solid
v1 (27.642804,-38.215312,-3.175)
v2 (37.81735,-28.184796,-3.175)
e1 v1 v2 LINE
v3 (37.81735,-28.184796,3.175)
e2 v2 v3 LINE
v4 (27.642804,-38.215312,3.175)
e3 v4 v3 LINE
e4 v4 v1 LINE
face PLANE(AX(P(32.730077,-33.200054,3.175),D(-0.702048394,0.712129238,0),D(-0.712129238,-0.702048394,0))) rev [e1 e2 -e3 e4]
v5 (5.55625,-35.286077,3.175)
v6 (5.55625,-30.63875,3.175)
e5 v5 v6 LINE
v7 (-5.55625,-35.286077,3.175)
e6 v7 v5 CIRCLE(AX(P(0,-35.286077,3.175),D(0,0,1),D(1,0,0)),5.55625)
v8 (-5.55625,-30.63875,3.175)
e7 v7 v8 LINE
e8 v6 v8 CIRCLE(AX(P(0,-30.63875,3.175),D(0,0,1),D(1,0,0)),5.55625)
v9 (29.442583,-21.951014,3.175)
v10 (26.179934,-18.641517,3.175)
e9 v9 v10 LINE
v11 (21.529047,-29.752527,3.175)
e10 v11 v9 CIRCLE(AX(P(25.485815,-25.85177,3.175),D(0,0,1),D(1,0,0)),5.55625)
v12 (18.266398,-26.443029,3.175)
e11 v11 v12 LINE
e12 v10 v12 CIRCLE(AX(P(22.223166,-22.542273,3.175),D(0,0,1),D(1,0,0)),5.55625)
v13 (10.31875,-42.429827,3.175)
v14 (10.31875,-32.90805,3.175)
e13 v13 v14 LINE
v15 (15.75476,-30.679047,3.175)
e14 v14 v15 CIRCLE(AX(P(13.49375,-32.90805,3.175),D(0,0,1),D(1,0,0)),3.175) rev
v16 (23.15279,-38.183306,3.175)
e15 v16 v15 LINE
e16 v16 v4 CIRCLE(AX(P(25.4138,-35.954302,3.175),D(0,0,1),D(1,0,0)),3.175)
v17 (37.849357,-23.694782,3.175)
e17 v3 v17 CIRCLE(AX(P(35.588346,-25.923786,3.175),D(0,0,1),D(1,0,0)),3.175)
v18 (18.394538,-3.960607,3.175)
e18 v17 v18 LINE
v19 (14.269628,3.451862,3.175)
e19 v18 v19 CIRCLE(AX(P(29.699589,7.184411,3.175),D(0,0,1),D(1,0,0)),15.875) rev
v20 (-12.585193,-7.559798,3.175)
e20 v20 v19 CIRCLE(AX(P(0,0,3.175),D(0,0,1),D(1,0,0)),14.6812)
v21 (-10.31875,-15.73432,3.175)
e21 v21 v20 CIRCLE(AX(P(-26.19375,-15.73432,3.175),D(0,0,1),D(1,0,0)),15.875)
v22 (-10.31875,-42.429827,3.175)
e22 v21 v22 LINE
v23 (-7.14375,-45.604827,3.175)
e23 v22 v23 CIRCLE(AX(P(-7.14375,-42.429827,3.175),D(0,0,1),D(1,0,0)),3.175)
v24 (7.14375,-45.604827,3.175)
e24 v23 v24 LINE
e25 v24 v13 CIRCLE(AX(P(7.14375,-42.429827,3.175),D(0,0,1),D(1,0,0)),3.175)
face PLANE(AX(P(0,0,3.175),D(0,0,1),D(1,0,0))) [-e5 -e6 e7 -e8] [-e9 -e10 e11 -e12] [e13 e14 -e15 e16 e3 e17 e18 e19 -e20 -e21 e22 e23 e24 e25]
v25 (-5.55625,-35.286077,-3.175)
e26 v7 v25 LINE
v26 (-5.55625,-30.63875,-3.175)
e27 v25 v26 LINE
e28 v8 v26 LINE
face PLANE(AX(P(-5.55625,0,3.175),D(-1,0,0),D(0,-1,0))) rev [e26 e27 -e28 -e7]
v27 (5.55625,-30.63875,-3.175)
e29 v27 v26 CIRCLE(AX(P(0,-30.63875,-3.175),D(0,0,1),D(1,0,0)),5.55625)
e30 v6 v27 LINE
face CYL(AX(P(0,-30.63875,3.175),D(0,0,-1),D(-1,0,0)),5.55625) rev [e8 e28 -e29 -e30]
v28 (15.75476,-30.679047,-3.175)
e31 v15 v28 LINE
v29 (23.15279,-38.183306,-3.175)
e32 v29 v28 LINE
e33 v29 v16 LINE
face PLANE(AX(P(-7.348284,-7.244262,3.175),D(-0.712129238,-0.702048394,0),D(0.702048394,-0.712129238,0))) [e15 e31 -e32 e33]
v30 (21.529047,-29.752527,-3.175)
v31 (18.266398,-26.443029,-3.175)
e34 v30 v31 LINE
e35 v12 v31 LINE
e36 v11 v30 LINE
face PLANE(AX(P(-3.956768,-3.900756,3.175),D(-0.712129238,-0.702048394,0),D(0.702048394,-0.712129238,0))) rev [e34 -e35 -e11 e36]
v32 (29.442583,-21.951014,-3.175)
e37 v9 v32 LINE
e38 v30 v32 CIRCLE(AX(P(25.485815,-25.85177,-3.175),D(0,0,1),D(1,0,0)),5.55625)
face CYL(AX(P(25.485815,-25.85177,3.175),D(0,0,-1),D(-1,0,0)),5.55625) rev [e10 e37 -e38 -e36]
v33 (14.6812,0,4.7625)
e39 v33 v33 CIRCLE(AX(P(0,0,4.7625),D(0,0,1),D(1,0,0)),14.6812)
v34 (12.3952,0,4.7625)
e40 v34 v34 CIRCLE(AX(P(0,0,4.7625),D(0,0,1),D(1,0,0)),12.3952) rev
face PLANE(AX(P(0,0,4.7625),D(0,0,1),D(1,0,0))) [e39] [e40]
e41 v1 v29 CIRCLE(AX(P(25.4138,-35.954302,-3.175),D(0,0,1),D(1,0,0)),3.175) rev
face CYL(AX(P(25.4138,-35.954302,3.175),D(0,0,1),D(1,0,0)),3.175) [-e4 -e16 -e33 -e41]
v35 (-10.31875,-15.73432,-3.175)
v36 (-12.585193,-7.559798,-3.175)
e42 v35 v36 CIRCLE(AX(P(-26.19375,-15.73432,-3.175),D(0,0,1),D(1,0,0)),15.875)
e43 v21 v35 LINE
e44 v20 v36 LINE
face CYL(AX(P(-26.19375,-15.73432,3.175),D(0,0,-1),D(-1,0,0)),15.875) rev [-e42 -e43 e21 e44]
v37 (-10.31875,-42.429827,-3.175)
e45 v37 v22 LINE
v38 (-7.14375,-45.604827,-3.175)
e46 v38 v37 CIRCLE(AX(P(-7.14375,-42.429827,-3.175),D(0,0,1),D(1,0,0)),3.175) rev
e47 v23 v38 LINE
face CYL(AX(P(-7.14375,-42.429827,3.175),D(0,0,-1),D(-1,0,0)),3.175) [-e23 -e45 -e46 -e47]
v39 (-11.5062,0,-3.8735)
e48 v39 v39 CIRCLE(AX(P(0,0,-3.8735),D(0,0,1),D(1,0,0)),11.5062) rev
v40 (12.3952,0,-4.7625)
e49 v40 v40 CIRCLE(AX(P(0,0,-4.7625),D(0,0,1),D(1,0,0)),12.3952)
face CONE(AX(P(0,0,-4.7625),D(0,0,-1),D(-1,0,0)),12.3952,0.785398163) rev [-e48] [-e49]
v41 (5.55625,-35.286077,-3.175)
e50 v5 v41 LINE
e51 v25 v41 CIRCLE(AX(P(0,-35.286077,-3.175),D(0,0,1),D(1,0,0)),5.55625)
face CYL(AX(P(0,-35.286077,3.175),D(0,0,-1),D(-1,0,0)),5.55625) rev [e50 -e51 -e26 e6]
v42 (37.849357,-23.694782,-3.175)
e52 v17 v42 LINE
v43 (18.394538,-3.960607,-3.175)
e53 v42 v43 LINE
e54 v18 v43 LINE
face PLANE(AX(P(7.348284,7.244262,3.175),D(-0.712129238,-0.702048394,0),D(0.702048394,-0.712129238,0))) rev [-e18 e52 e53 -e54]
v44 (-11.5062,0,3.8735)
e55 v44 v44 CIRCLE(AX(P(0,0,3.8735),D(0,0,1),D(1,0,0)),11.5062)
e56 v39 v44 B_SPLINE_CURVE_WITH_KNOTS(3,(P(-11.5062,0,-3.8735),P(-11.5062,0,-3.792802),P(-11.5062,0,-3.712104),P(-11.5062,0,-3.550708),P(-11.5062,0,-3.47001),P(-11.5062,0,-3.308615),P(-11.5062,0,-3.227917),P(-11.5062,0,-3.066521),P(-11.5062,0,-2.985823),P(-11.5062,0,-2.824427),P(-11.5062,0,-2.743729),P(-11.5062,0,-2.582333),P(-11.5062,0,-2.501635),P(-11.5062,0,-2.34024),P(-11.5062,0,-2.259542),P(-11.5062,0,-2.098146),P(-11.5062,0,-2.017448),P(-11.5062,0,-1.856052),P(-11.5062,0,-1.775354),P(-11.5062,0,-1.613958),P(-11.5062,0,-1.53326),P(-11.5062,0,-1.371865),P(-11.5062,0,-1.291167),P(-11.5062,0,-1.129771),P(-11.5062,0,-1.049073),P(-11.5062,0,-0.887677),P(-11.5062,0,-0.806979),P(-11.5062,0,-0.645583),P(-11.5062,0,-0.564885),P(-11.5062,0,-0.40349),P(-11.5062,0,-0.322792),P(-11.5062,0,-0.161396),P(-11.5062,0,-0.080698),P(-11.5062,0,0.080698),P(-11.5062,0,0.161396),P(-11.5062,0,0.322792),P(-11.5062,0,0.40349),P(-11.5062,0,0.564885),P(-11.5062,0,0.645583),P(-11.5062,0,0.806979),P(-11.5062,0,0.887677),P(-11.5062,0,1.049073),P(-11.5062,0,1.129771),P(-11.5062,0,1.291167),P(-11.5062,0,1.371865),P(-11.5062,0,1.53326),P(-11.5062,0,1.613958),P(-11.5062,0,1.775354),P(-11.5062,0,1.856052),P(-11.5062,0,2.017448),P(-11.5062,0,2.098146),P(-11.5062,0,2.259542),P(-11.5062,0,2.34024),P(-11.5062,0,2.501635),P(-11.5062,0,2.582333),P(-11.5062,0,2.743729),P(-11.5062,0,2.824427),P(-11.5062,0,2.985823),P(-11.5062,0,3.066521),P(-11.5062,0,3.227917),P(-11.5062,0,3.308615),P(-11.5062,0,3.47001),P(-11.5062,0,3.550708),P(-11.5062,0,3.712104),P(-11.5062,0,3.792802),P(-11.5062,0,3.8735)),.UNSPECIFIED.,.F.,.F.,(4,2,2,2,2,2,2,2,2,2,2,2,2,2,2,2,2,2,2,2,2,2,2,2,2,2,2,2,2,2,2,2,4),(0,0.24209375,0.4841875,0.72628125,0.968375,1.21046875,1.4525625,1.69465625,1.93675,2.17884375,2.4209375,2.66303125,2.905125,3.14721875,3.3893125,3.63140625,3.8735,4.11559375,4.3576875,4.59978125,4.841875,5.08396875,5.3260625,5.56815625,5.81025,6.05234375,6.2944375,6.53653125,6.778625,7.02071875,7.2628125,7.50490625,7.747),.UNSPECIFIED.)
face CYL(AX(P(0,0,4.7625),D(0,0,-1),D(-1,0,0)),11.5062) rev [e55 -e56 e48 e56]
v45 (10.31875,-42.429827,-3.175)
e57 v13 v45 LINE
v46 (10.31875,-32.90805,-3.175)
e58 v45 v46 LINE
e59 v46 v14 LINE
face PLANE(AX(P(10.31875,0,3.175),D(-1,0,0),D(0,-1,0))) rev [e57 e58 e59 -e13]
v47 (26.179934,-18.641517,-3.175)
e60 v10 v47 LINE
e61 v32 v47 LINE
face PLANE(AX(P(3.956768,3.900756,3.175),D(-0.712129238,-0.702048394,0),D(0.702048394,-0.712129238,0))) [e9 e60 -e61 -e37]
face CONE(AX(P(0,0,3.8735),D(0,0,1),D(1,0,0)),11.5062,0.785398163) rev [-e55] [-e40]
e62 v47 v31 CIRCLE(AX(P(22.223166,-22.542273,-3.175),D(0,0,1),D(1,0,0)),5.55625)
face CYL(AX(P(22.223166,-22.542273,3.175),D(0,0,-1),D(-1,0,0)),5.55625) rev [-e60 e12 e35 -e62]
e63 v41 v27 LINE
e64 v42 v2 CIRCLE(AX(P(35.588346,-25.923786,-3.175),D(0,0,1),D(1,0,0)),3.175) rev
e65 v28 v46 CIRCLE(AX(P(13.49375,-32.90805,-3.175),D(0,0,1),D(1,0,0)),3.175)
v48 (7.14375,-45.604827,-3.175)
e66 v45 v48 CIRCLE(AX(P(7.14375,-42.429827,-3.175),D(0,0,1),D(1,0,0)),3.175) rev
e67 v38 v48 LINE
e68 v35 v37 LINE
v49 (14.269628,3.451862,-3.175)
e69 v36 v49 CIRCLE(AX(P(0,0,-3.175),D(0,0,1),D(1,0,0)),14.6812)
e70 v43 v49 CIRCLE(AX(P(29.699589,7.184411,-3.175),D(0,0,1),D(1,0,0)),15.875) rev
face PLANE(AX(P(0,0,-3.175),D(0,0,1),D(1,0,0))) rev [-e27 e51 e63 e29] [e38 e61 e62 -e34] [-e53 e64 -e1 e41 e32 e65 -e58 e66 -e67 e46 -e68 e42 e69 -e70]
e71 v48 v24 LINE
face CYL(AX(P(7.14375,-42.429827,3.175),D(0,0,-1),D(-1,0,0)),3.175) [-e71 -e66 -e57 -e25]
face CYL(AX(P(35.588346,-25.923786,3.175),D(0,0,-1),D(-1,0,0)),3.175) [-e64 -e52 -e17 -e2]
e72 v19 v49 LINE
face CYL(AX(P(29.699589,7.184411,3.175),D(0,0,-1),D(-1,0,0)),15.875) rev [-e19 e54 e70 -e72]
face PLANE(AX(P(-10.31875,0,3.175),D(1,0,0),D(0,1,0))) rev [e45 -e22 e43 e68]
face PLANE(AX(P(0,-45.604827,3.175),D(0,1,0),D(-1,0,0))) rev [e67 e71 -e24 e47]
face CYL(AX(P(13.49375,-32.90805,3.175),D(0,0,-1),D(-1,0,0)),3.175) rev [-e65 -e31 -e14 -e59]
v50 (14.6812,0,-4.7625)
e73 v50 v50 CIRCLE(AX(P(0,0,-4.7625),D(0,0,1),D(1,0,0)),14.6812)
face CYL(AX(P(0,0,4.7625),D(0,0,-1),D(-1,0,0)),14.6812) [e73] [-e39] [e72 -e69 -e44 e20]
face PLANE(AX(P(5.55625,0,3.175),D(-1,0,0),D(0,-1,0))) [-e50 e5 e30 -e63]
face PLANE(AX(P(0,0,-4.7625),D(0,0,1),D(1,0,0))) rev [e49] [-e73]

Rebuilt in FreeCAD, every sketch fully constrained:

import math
import FreeCAD as App
import Part
import Sketcher
Q = App.Units.Quantity


def edges_at(feature, points):
    """Names of the edges that pass closest to the given points."""
    edges = feature.Shape.Edges
    near = lambda p: min(range(len(edges)), key=lambda i: edges[i].distToShape(Part.Vertex(*p))[0])
    return sorted({f"Edge{near(p) + 1}" for p in points})

doc = App.newDocument("Part")
body = doc.addObject("PartDesign::Body", "Body")

# Sketch on XY plane
sketch1 = body.newObject("Sketcher::SketchObject", "Sketch")
sketch1.AttachmentSupport = (doc.getObject("XY_Plane"), [""])
sketch1.MapMode = "FlatFace"
sketch1.addGeometry([
    Part.ArcOfCircle(Part.Circle(App.Vector(0, 0, 0), App.Vector(0, 0, 1), 15), math.radians(14), math.radians(211)),
    Part.ArcOfCircle(Part.Circle(App.Vector(0, 0, 0), App.Vector(0, 0, 1), 15), math.radians(-149), math.radians(14)),
    Part.Circle(App.Vector(0, 0, 0), App.Vector(0, 0, 1), 12),
], False)
sketch1.addConstraint([
    Sketcher.Constraint("Tangent", 0, 1, 1, 2),
    Sketcher.Constraint("Coincident", 1, 1, 0, 2),
    Sketcher.Constraint("Coincident", 0, 3, -1, 1),
    Sketcher.Constraint("Coincident", 2, 3, -1, 1),
    Sketcher.Constraint("Diameter", 2, Q("0.906 in")),
    Sketcher.Constraint("Radius", 0, Q("0.578 in")),
    Sketcher.Constraint("DistanceY", -1, 1, 0, 1, Q("0.1359001 in")),
    Sketcher.Constraint("DistanceX", 1, 1, 0, 1, Q("26.854821 mm")),
])
pad1 = body.newObject("PartDesign::Pad", "Pad")
pad1.Profile = sketch1
pad1.Length = Q("0.375 in")
pad1.Midplane = True

# Sketch on XY plane
sketch2 = body.newObject("Sketcher::SketchObject", "Sketch001")
sketch2.AttachmentSupport = (doc.getObject("XY_Plane"), [""])
sketch2.MapMode = "FlatFace"
sketch2.addGeometry([
    Part.ArcOfCircle(Part.Circle(App.Vector(-26.2, -15.7, 0), App.Vector(0, 0, 1), 15.9), math.radians(0), math.radians(31)),  # 0
    Part.LineSegment(App.Vector(-10.3, -15.7, 0), App.Vector(-10.3, -45.6, 0)),  # 1
    Part.LineSegment(App.Vector(-10.3, -45.6, 0), App.Vector(10.3, -45.6, 0)),  # 2
    Part.LineSegment(App.Vector(10.3, -45.6, 0), App.Vector(10.3, -25.2, 0)),  # 3
    Part.LineSegment(App.Vector(10.3, -25.2, 0), App.Vector(25.4, -40.4, 0)),  # 4
    Part.LineSegment(App.Vector(25.4, -40.4, 0), App.Vector(40.1, -26, 0)),  # 5
    Part.LineSegment(App.Vector(40.1, -26, 0), App.Vector(18.4, -4, 0)),  # 6
    Part.ArcOfCircle(Part.Circle(App.Vector(29.7, 7.2, 0), App.Vector(0, 0, 1), 15.9), math.radians(-166), math.radians(-135)),  # 7
    Part.ArcOfCircle(Part.Circle(App.Vector(0, 0, 0), App.Vector(0, 0, 1), 14.7), math.radians(-149), math.radians(14)),  # 8
    Part.LineSegment(App.Vector(5.6, -30.6, 0), App.Vector(5.6, -35.3, 0)),  # 9
    Part.ArcOfCircle(Part.Circle(App.Vector(0, -35.3, 0), App.Vector(0, 0, 1), 5.6), math.radians(180), math.radians(360)),  # 10
    Part.LineSegment(App.Vector(-5.6, -35.3, 0), App.Vector(-5.6, -30.6, 0)),  # 11
    Part.ArcOfCircle(Part.Circle(App.Vector(0, -30.6, 0), App.Vector(0, 0, 1), 5.6), math.radians(0), math.radians(180)),  # 12
    Part.LineSegment(App.Vector(26.2, -18.6, 0), App.Vector(29.4, -22, 0)),  # 13
    Part.ArcOfCircle(Part.Circle(App.Vector(25.5, -25.9, 0), App.Vector(0, 0, 1), 5.6), math.radians(-135), math.radians(45)),  # 14
    Part.LineSegment(App.Vector(21.5, -29.8, 0), App.Vector(18.3, -26.4, 0)),  # 15
    Part.ArcOfCircle(Part.Circle(App.Vector(22.2, -22.5, 0), App.Vector(0, 0, 1), 5.6), math.radians(45), math.radians(225)),  # 16
], False)
sketch2.addConstraint([
    Sketcher.Constraint("Tangent", 0, 1, 1, 1),
    Sketcher.Constraint("Coincident", 1, 2, 2, 1),
    Sketcher.Constraint("Coincident", 2, 2, 3, 1),
    Sketcher.Constraint("Coincident", 3, 2, 4, 1),
    Sketcher.Constraint("Coincident", 4, 2, 5, 1),
    Sketcher.Constraint("Coincident", 5, 2, 6, 1),
    Sketcher.Constraint("Tangent", 6, 2, 7, 2),
    Sketcher.Constraint("Tangent", 7, 1, 8, 2),
    Sketcher.Constraint("Tangent", 8, 1, 0, 2),
    Sketcher.Constraint("Tangent", 9, 2, 10, 2),
    Sketcher.Constraint("Tangent", 10, 1, 11, 1),
    Sketcher.Constraint("Tangent", 11, 2, 12, 2),
    Sketcher.Constraint("Tangent", 12, 1, 9, 1),
    Sketcher.Constraint("Tangent", 13, 2, 14, 2),
    Sketcher.Constraint("Tangent", 14, 1, 15, 1),
    Sketcher.Constraint("Tangent", 15, 2, 16, 2),
    Sketcher.Constraint("Tangent", 16, 1, 13, 1),
    Sketcher.Constraint("Vertical", 1),
    Sketcher.Constraint("Horizontal", 2),
    Sketcher.Constraint("Vertical", 3),
    Sketcher.Constraint("Vertical", 9),
    Sketcher.Constraint("Vertical", 11),
    Sketcher.Constraint("Coincident", 8, 3, -1, 1),
    Sketcher.Constraint("Equal", 0, 7),
    Sketcher.Constraint("Equal", 12, 14),
    Sketcher.Constraint("Equal", 14, 16),
    Sketcher.Constraint("PointOnObject", 10, 3, -2),
    Sketcher.Constraint("Perpendicular", 4, 5),
    Sketcher.Constraint("Perpendicular", 5, 6),
    Sketcher.Constraint("Parallel", 6, 13),
    Sketcher.Constraint("Radius", 0, Q("0.625 in")),
    Sketcher.Constraint("Radius", 8, Q("0.578 in")),
    Sketcher.Constraint("Radius", 10, Q("0.21875 in")),
    Sketcher.Constraint("DistanceX", 2, 1, 2, 2, Q("0.8125 in")),
    Sketcher.Constraint("Distance", 5, Q("0.8125 in")),
    Sketcher.Constraint("DistanceX", 0, 3, -1, 1, Q("1.03125 in")),
    Sketcher.Constraint("DistanceY", 1, 2, 10, 3, Q("0.40625 in")),
    Sketcher.Constraint("DistanceY", -1, 1, 7, 1, Q("0.1359001 in")),
    Sketcher.Constraint("DistanceX", -1, 1, 15, 2, Q("18.266398 mm")),
    Sketcher.Constraint("DistanceY", 4, 2, 13, 2, Q("18.493302 mm")),
    Sketcher.Constraint("DistanceY", 1, 2, 1, 1, Q("29.870507 mm")),
    Sketcher.Constraint("DistanceY", 3, 1, 3, 2, Q("20.439847 mm")),
    Sketcher.Constraint("DistanceY", 9, 2, 9, 1, Q("4.647327 mm")),
    Sketcher.Constraint("DistanceY", 14, 3, -1, 1, Q("25.85177 mm")),
    Sketcher.Constraint("DistanceY", 15, 2, -1, 1, Q("26.443029 mm")),
])
pad2 = body.newObject("PartDesign::Pad", "Pad001")
pad2.Profile = sketch2
pad2.Length = Q("0.25 in")
pad2.Midplane = True
doc.recompute()

fillet = body.newObject("PartDesign::Fillet", "Fillet")
fillet.Base = (pad2, edges_at(pad2, [
    (-10.319, -45.605, 0),
    (10.319, -45.605, 0),
    (10.319, -25.165, 0),
    (25.382, -40.444, 0),
    (40.078, -25.956, 0),
]))
fillet.Radius = Q("0.125 in")
doc.recompute()

chamfer = body.newObject("PartDesign::Chamfer", "Chamfer")
chamfer.Base = (fillet, edges_at(fillet, [(11.506, 0, -4.763), (11.506, 0, 4.763)]))
chamfer.Size = Q("0.035 in")

doc.recompute()
